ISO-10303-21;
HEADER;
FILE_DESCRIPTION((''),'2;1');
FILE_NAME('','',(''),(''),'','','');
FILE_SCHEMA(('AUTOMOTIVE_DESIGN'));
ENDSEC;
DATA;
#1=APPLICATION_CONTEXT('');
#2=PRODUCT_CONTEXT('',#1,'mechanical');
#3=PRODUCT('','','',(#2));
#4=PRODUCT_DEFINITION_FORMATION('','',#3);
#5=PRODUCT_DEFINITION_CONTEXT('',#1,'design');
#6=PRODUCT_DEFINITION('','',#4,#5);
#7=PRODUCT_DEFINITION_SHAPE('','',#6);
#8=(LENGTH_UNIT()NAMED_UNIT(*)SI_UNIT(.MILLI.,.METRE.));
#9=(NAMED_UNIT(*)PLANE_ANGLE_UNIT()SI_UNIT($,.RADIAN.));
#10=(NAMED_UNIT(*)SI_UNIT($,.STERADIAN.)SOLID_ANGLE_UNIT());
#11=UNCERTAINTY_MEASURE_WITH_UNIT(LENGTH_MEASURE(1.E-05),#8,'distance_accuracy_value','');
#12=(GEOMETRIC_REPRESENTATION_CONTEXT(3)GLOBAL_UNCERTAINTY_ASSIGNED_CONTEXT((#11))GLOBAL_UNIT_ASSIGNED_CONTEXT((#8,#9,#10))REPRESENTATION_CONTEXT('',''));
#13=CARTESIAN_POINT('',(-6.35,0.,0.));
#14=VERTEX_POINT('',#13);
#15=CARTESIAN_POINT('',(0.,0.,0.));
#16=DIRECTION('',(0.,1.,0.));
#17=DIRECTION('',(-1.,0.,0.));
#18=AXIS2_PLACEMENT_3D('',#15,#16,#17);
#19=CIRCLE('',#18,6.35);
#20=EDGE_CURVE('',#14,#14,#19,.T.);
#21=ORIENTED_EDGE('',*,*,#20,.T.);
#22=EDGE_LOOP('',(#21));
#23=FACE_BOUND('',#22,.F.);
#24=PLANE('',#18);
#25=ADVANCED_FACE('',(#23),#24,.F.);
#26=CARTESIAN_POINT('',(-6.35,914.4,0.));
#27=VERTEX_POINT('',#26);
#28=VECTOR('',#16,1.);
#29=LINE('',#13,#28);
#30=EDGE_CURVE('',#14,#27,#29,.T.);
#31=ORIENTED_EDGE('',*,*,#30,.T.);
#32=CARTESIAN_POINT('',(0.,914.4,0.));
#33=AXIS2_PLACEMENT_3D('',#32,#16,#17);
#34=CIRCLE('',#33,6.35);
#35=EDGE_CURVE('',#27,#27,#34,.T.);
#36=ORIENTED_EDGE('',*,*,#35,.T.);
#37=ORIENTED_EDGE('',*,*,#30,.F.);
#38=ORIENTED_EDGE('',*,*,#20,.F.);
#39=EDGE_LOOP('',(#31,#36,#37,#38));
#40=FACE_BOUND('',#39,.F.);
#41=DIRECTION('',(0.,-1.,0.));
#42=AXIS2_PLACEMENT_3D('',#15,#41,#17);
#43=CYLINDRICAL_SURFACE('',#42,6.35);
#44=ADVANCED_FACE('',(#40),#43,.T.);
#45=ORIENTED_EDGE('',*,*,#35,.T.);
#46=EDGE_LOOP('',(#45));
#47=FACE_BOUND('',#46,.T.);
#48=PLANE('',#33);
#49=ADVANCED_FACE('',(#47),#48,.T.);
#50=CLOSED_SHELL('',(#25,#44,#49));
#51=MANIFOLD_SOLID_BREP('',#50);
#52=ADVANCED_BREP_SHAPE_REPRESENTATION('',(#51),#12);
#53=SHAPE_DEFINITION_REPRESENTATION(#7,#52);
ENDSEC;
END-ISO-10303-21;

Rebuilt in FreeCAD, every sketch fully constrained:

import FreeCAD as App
import Part
import Sketcher
from FreeCAD import Vector
Q = App.Units.Quantity

doc = App.newDocument("Part")
body = doc.addObject("PartDesign::Body", "Body")

sketch1 = body.newObject("Sketcher::SketchObject", "Sketch")
sketch1.AttachmentSupport = (doc.getObject("XZ_Plane"), [""])
sketch1.MapMode = "FlatFace"
sketch1.addGeometry(Part.Circle(Vector(0, 0, 0), Vector(0, 0, 1), 6), False)
sketch1.addConstraint(Sketcher.Constraint("Coincident", 0, 3, -1, 1))
sketch1.addConstraint(Sketcher.Constraint("Diameter", 0, Q("0.5 in")))
pad1 = body.newObject("PartDesign::Pad", "Pad")
pad1.Profile = sketch1
pad1.Length = Q("36 in")
pad1.Reversed = True

doc.recompute()
